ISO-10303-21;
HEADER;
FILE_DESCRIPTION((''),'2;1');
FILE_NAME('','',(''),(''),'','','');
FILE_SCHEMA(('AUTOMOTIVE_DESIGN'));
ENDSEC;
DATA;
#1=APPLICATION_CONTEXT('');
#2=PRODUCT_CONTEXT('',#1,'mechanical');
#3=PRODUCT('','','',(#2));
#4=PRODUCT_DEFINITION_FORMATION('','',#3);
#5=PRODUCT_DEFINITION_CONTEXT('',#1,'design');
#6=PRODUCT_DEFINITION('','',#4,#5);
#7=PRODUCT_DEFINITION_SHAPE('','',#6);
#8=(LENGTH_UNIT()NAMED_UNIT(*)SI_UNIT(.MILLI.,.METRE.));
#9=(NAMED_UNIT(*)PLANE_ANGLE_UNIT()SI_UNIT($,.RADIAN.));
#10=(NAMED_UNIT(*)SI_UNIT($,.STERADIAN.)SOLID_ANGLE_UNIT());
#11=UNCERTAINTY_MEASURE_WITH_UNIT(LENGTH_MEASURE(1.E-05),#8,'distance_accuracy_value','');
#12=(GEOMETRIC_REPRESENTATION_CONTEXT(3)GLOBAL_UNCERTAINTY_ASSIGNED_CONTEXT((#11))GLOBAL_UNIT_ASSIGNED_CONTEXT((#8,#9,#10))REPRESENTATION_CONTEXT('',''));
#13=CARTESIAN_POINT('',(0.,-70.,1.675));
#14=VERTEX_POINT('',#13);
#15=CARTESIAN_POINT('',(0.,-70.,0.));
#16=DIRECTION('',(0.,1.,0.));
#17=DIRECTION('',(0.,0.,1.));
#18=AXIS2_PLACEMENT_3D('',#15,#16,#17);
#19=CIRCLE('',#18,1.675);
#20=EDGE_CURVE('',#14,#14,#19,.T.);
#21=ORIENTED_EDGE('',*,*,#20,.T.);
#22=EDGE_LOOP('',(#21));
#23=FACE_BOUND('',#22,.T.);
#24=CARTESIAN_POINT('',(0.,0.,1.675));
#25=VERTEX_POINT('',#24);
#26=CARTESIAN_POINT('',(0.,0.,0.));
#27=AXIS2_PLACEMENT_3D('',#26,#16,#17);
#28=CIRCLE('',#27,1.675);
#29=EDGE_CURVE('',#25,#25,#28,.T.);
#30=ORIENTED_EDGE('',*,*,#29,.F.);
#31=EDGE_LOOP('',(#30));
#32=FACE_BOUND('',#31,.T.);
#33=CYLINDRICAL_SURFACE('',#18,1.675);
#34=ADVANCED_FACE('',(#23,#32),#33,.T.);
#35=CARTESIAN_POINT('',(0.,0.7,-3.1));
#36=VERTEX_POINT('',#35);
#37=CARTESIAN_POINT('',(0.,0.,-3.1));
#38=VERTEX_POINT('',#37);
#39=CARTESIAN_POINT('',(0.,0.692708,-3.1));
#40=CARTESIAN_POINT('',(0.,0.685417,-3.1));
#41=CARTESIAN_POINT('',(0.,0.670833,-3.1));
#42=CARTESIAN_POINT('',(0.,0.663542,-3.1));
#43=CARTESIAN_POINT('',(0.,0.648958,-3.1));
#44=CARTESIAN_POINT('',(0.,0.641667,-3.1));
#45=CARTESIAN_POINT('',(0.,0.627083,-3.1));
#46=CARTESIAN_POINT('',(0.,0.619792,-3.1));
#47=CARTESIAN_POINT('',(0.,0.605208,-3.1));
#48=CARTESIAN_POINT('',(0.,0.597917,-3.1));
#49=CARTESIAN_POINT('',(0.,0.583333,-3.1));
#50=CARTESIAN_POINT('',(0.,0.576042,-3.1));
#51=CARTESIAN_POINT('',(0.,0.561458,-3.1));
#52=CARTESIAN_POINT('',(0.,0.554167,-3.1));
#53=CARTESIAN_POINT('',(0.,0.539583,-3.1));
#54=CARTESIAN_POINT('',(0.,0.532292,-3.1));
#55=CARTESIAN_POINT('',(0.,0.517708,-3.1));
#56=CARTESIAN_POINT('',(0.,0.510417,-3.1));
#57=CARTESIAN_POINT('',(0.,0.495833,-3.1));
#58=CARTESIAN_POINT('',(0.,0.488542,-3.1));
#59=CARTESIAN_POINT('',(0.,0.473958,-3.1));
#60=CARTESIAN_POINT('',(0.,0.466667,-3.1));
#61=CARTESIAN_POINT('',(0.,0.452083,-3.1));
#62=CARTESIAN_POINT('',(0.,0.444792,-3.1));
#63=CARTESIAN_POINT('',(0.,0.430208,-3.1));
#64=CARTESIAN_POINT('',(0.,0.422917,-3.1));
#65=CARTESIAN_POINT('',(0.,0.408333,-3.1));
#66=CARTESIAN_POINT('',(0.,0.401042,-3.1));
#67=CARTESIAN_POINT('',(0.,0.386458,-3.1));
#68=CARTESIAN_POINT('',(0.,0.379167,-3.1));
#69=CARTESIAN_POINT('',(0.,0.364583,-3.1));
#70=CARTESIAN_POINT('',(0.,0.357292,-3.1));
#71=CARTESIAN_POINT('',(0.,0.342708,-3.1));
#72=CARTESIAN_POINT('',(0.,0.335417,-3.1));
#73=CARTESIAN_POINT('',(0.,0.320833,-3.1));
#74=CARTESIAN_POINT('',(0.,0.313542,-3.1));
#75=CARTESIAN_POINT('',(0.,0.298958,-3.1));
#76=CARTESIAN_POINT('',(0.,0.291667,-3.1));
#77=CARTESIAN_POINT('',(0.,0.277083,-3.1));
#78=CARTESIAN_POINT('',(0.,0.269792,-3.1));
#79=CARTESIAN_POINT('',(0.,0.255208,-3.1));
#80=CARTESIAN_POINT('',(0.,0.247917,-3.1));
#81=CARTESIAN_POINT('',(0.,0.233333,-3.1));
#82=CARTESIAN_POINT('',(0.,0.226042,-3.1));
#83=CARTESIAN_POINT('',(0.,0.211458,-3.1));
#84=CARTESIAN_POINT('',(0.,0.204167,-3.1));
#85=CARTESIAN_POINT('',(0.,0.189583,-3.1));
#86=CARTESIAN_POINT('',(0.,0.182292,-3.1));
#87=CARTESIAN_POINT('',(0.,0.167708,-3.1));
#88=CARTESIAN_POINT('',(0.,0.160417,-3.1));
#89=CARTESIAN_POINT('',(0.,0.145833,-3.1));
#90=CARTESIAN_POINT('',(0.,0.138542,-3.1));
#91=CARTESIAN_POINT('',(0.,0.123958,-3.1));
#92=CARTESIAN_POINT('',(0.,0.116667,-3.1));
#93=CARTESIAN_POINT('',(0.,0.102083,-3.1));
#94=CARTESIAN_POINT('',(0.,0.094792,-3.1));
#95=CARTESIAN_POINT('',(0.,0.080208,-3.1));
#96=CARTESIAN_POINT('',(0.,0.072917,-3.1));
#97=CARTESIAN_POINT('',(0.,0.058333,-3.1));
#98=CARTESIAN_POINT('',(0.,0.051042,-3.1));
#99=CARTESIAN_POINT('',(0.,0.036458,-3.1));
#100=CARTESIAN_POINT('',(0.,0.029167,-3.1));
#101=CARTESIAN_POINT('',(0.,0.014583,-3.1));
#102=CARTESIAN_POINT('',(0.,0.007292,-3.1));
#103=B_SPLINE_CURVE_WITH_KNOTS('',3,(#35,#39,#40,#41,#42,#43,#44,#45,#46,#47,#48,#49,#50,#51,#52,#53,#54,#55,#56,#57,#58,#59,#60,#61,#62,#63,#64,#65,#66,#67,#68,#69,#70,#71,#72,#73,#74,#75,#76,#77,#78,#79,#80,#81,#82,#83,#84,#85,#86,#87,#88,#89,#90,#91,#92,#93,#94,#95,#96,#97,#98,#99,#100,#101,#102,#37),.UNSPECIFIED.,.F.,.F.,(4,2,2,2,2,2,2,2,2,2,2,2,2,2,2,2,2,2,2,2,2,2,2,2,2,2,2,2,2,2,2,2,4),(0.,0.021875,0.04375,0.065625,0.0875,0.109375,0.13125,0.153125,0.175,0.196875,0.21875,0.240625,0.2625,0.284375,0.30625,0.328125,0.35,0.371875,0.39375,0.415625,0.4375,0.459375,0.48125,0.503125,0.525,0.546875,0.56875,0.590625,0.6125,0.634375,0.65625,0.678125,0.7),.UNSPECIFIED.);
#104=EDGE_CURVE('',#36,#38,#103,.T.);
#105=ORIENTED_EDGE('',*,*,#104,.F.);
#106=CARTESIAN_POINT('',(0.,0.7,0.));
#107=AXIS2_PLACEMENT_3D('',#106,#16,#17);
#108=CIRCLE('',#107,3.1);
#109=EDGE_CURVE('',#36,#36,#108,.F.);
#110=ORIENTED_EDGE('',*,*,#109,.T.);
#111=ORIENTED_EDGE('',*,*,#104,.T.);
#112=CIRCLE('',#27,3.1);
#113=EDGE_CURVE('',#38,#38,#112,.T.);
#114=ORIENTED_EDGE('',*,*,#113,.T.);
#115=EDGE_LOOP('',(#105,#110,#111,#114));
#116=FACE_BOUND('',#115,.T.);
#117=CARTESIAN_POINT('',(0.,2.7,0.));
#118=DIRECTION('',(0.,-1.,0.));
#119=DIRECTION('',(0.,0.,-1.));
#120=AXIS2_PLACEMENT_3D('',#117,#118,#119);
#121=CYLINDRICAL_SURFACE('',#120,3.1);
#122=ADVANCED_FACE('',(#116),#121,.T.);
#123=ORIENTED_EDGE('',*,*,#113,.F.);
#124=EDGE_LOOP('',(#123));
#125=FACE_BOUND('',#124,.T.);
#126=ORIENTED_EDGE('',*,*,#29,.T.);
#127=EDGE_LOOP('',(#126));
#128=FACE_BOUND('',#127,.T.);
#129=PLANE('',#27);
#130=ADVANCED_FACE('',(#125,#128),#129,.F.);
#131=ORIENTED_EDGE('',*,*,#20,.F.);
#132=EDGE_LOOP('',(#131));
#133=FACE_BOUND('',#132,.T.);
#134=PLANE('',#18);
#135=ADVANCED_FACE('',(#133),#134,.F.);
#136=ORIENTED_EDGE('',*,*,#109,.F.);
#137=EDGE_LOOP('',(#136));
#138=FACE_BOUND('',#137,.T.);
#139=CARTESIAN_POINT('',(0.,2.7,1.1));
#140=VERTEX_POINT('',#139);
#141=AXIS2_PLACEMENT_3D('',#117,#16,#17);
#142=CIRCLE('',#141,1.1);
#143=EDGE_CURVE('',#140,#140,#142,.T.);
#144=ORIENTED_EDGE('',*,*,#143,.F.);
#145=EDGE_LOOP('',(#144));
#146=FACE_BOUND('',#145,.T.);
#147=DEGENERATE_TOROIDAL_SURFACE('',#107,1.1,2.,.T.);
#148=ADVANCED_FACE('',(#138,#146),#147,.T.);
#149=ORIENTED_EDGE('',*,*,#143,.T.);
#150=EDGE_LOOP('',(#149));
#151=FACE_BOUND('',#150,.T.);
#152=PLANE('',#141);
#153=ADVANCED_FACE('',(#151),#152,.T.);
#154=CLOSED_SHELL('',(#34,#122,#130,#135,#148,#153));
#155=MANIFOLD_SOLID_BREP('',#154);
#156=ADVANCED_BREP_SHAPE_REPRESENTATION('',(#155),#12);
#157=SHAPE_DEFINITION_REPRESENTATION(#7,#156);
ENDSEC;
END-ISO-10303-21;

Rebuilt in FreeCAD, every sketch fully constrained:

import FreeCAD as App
import Part
import Sketcher


def edges_at(feature, points):
    """Names of the edges that pass closest to the given points."""
    edges = feature.Shape.Edges
    near = lambda p: min(range(len(edges)), key=lambda i: edges[i].distToShape(Part.Vertex(*p))[0])
    return sorted({f"Edge{near(p) + 1}" for p in points})

doc = App.newDocument("Part")
body = doc.addObject("PartDesign::Body", "Body")

sketch1 = body.newObject("Sketcher::SketchObject", "Sketch")
sketch1.AttachmentSupport = (doc.getObject("XZ_Plane"), [""])
sketch1.MapMode = "FlatFace"
sketch1.addGeometry(Part.Circle(App.Vector(0, 0, 0), App.Vector(0, 0, 1), 1.7), False)
sketch1.addConstraint([
    Sketcher.Constraint("Coincident", 0, 3, -1, 1),
    Sketcher.Constraint("Diameter", 0, 3.35),
])
pad1 = body.newObject("PartDesign::Pad", "Pad")
pad1.Profile = sketch1
pad1.Length = 70

sketch2 = body.newObject("Sketcher::SketchObject", "Sketch001")
sketch2.AttachmentSupport = (doc.getObject("XZ_Plane"), [""])
sketch2.MapMode = "FlatFace"
sketch2.addGeometry(Part.Circle(App.Vector(0, 0, 0), App.Vector(0, 0, 1), 3.1), False)
sketch2.addConstraint([
    Sketcher.Constraint("Coincident", 0, 3, -1, 1),
    Sketcher.Constraint("Diameter", 0, 6.2),
])
pad2 = body.newObject("PartDesign::Pad", "Pad001")
pad2.Profile = sketch2
pad2.Length = 2.7
pad2.Reversed = True
doc.recompute()

fillet = body.newObject("PartDesign::Fillet", "Fillet")
fillet.Base = (pad2, edges_at(pad2, [(0, 2.7, 3.1)]))
fillet.Radius = 2

doc.recompute()
